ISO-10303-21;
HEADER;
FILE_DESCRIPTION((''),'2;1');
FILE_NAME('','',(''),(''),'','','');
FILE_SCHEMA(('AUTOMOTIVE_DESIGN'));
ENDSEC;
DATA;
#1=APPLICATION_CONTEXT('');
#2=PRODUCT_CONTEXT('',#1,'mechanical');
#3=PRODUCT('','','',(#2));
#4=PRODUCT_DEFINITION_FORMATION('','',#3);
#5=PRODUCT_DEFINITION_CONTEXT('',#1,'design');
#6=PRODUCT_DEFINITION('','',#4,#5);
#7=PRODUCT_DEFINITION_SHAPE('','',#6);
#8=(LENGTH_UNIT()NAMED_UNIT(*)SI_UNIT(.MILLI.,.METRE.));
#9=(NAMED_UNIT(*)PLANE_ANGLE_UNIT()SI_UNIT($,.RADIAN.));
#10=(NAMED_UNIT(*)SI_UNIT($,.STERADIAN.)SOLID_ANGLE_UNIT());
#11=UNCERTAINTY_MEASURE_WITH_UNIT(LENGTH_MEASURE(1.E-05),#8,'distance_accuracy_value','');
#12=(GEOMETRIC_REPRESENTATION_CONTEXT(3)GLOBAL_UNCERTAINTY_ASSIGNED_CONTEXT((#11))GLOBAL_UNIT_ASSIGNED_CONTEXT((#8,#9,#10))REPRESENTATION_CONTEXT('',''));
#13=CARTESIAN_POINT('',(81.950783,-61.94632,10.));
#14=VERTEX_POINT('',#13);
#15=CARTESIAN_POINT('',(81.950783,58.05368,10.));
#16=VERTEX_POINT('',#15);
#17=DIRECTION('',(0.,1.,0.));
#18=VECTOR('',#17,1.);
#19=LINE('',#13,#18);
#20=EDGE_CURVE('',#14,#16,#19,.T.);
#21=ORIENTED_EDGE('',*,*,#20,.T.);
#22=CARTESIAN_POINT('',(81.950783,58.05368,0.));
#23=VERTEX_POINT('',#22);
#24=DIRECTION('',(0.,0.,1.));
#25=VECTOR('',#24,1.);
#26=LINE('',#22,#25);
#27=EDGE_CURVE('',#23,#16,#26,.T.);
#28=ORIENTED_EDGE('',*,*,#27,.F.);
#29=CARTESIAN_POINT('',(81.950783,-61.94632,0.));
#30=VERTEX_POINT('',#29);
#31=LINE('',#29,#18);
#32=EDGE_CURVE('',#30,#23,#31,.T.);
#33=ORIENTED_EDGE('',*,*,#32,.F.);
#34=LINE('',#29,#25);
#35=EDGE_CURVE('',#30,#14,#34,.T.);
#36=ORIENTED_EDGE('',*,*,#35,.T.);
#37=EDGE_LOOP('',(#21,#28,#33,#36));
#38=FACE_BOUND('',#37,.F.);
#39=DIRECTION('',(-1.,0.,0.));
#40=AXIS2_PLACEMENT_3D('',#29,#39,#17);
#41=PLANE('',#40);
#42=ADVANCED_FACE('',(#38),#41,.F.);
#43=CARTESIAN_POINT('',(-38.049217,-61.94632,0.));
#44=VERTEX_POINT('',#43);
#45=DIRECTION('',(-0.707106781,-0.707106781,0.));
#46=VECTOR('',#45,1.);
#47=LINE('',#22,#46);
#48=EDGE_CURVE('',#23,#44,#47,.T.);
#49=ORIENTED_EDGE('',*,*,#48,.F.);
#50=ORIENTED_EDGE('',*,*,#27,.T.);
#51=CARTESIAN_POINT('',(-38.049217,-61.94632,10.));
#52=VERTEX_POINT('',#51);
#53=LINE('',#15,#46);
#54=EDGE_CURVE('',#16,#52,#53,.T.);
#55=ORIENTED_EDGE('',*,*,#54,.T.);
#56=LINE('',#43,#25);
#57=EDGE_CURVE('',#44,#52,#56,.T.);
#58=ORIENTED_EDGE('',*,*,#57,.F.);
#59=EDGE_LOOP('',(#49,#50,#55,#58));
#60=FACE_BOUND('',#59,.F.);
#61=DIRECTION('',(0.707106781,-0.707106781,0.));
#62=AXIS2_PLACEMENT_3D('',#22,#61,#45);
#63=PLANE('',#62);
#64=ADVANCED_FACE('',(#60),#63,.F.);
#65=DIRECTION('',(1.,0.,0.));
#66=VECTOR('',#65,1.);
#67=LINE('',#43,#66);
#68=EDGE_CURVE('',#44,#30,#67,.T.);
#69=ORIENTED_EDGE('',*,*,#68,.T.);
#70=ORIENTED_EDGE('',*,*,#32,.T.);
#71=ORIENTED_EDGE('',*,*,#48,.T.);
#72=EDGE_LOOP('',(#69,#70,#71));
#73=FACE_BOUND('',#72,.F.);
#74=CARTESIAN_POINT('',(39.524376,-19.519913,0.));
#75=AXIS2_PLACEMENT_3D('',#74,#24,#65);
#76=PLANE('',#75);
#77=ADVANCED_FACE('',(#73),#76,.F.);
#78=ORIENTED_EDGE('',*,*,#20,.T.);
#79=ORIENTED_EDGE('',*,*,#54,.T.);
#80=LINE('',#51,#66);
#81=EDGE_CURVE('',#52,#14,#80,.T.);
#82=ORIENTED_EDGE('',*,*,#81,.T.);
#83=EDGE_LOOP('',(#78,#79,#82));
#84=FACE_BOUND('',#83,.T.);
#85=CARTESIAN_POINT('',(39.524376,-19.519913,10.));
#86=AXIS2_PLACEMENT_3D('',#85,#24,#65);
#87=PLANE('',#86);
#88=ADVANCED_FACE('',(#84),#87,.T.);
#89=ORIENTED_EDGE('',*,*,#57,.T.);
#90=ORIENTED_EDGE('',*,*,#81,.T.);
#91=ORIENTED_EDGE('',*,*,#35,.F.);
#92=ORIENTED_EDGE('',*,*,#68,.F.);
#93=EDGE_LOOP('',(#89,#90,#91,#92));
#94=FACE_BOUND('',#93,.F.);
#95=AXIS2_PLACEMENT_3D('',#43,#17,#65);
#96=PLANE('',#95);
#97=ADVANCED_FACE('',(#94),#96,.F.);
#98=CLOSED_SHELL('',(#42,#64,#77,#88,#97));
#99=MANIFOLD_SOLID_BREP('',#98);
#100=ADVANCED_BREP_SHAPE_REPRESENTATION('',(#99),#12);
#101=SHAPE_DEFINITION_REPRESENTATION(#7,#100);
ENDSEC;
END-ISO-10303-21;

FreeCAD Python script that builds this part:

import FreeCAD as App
import Part
import Sketcher
from FreeCAD import Vector
Q = App.Units.Quantity

doc = App.newDocument("Part")
body = doc.addObject("PartDesign::Body", "Body")

# Sketch on XY plane
sketch1 = doc.addObject("Sketcher::SketchObject", "Sketch")
body.addObject(sketch1)
sketch1.AttachmentSupport = (doc.XY_Plane, [""])
sketch1.MapMode = "FlatFace"
sketch1.addGeometry(Part.LineSegment(Vector(-38.049217, -61.94632, 0), Vector(81.950783, -61.94632, 0)), False)
sketch1.addGeometry(Part.LineSegment(Vector(81.950783, -61.94632, 0), Vector(81.950783, 58.05368, 0)), False)
sketch1.addGeometry(Part.LineSegment(Vector(81.950783, 58.05368, 0), Vector(-38.049217, -61.94632, 0)), False)
sketch1.addConstraint(Sketcher.Constraint("Coincident", 0, 2, 1, 1))
sketch1.addConstraint(Sketcher.Constraint("Coincident", 1, 2, 2, 1))
sketch1.addConstraint(Sketcher.Constraint("Coincident", 2, 2, 0, 1))
sketch1.addConstraint(Sketcher.Constraint("Horizontal", 0))
sketch1.addConstraint(Sketcher.Constraint("Vertical", 1))
sketch1.addConstraint(Sketcher.Constraint("Equal", 0, 1))
sketch1.addConstraint(Sketcher.Constraint("DistanceX", 0, 1, 0, 2, Q("120 mm")))
sketch1.addConstraint(Sketcher.Constraint("DistanceY", 0, 2, -1, 1, Q("61.94632 mm")))
sketch1.addConstraint(Sketcher.Constraint("DistanceX", -1, 1, 0, 2, Q("81.950783 mm")))
pad1 = doc.addObject("PartDesign::Pad", "Pad")
body.addObject(pad1)
pad1.Profile = sketch1
pad1.Length = 10

doc.recompute()
